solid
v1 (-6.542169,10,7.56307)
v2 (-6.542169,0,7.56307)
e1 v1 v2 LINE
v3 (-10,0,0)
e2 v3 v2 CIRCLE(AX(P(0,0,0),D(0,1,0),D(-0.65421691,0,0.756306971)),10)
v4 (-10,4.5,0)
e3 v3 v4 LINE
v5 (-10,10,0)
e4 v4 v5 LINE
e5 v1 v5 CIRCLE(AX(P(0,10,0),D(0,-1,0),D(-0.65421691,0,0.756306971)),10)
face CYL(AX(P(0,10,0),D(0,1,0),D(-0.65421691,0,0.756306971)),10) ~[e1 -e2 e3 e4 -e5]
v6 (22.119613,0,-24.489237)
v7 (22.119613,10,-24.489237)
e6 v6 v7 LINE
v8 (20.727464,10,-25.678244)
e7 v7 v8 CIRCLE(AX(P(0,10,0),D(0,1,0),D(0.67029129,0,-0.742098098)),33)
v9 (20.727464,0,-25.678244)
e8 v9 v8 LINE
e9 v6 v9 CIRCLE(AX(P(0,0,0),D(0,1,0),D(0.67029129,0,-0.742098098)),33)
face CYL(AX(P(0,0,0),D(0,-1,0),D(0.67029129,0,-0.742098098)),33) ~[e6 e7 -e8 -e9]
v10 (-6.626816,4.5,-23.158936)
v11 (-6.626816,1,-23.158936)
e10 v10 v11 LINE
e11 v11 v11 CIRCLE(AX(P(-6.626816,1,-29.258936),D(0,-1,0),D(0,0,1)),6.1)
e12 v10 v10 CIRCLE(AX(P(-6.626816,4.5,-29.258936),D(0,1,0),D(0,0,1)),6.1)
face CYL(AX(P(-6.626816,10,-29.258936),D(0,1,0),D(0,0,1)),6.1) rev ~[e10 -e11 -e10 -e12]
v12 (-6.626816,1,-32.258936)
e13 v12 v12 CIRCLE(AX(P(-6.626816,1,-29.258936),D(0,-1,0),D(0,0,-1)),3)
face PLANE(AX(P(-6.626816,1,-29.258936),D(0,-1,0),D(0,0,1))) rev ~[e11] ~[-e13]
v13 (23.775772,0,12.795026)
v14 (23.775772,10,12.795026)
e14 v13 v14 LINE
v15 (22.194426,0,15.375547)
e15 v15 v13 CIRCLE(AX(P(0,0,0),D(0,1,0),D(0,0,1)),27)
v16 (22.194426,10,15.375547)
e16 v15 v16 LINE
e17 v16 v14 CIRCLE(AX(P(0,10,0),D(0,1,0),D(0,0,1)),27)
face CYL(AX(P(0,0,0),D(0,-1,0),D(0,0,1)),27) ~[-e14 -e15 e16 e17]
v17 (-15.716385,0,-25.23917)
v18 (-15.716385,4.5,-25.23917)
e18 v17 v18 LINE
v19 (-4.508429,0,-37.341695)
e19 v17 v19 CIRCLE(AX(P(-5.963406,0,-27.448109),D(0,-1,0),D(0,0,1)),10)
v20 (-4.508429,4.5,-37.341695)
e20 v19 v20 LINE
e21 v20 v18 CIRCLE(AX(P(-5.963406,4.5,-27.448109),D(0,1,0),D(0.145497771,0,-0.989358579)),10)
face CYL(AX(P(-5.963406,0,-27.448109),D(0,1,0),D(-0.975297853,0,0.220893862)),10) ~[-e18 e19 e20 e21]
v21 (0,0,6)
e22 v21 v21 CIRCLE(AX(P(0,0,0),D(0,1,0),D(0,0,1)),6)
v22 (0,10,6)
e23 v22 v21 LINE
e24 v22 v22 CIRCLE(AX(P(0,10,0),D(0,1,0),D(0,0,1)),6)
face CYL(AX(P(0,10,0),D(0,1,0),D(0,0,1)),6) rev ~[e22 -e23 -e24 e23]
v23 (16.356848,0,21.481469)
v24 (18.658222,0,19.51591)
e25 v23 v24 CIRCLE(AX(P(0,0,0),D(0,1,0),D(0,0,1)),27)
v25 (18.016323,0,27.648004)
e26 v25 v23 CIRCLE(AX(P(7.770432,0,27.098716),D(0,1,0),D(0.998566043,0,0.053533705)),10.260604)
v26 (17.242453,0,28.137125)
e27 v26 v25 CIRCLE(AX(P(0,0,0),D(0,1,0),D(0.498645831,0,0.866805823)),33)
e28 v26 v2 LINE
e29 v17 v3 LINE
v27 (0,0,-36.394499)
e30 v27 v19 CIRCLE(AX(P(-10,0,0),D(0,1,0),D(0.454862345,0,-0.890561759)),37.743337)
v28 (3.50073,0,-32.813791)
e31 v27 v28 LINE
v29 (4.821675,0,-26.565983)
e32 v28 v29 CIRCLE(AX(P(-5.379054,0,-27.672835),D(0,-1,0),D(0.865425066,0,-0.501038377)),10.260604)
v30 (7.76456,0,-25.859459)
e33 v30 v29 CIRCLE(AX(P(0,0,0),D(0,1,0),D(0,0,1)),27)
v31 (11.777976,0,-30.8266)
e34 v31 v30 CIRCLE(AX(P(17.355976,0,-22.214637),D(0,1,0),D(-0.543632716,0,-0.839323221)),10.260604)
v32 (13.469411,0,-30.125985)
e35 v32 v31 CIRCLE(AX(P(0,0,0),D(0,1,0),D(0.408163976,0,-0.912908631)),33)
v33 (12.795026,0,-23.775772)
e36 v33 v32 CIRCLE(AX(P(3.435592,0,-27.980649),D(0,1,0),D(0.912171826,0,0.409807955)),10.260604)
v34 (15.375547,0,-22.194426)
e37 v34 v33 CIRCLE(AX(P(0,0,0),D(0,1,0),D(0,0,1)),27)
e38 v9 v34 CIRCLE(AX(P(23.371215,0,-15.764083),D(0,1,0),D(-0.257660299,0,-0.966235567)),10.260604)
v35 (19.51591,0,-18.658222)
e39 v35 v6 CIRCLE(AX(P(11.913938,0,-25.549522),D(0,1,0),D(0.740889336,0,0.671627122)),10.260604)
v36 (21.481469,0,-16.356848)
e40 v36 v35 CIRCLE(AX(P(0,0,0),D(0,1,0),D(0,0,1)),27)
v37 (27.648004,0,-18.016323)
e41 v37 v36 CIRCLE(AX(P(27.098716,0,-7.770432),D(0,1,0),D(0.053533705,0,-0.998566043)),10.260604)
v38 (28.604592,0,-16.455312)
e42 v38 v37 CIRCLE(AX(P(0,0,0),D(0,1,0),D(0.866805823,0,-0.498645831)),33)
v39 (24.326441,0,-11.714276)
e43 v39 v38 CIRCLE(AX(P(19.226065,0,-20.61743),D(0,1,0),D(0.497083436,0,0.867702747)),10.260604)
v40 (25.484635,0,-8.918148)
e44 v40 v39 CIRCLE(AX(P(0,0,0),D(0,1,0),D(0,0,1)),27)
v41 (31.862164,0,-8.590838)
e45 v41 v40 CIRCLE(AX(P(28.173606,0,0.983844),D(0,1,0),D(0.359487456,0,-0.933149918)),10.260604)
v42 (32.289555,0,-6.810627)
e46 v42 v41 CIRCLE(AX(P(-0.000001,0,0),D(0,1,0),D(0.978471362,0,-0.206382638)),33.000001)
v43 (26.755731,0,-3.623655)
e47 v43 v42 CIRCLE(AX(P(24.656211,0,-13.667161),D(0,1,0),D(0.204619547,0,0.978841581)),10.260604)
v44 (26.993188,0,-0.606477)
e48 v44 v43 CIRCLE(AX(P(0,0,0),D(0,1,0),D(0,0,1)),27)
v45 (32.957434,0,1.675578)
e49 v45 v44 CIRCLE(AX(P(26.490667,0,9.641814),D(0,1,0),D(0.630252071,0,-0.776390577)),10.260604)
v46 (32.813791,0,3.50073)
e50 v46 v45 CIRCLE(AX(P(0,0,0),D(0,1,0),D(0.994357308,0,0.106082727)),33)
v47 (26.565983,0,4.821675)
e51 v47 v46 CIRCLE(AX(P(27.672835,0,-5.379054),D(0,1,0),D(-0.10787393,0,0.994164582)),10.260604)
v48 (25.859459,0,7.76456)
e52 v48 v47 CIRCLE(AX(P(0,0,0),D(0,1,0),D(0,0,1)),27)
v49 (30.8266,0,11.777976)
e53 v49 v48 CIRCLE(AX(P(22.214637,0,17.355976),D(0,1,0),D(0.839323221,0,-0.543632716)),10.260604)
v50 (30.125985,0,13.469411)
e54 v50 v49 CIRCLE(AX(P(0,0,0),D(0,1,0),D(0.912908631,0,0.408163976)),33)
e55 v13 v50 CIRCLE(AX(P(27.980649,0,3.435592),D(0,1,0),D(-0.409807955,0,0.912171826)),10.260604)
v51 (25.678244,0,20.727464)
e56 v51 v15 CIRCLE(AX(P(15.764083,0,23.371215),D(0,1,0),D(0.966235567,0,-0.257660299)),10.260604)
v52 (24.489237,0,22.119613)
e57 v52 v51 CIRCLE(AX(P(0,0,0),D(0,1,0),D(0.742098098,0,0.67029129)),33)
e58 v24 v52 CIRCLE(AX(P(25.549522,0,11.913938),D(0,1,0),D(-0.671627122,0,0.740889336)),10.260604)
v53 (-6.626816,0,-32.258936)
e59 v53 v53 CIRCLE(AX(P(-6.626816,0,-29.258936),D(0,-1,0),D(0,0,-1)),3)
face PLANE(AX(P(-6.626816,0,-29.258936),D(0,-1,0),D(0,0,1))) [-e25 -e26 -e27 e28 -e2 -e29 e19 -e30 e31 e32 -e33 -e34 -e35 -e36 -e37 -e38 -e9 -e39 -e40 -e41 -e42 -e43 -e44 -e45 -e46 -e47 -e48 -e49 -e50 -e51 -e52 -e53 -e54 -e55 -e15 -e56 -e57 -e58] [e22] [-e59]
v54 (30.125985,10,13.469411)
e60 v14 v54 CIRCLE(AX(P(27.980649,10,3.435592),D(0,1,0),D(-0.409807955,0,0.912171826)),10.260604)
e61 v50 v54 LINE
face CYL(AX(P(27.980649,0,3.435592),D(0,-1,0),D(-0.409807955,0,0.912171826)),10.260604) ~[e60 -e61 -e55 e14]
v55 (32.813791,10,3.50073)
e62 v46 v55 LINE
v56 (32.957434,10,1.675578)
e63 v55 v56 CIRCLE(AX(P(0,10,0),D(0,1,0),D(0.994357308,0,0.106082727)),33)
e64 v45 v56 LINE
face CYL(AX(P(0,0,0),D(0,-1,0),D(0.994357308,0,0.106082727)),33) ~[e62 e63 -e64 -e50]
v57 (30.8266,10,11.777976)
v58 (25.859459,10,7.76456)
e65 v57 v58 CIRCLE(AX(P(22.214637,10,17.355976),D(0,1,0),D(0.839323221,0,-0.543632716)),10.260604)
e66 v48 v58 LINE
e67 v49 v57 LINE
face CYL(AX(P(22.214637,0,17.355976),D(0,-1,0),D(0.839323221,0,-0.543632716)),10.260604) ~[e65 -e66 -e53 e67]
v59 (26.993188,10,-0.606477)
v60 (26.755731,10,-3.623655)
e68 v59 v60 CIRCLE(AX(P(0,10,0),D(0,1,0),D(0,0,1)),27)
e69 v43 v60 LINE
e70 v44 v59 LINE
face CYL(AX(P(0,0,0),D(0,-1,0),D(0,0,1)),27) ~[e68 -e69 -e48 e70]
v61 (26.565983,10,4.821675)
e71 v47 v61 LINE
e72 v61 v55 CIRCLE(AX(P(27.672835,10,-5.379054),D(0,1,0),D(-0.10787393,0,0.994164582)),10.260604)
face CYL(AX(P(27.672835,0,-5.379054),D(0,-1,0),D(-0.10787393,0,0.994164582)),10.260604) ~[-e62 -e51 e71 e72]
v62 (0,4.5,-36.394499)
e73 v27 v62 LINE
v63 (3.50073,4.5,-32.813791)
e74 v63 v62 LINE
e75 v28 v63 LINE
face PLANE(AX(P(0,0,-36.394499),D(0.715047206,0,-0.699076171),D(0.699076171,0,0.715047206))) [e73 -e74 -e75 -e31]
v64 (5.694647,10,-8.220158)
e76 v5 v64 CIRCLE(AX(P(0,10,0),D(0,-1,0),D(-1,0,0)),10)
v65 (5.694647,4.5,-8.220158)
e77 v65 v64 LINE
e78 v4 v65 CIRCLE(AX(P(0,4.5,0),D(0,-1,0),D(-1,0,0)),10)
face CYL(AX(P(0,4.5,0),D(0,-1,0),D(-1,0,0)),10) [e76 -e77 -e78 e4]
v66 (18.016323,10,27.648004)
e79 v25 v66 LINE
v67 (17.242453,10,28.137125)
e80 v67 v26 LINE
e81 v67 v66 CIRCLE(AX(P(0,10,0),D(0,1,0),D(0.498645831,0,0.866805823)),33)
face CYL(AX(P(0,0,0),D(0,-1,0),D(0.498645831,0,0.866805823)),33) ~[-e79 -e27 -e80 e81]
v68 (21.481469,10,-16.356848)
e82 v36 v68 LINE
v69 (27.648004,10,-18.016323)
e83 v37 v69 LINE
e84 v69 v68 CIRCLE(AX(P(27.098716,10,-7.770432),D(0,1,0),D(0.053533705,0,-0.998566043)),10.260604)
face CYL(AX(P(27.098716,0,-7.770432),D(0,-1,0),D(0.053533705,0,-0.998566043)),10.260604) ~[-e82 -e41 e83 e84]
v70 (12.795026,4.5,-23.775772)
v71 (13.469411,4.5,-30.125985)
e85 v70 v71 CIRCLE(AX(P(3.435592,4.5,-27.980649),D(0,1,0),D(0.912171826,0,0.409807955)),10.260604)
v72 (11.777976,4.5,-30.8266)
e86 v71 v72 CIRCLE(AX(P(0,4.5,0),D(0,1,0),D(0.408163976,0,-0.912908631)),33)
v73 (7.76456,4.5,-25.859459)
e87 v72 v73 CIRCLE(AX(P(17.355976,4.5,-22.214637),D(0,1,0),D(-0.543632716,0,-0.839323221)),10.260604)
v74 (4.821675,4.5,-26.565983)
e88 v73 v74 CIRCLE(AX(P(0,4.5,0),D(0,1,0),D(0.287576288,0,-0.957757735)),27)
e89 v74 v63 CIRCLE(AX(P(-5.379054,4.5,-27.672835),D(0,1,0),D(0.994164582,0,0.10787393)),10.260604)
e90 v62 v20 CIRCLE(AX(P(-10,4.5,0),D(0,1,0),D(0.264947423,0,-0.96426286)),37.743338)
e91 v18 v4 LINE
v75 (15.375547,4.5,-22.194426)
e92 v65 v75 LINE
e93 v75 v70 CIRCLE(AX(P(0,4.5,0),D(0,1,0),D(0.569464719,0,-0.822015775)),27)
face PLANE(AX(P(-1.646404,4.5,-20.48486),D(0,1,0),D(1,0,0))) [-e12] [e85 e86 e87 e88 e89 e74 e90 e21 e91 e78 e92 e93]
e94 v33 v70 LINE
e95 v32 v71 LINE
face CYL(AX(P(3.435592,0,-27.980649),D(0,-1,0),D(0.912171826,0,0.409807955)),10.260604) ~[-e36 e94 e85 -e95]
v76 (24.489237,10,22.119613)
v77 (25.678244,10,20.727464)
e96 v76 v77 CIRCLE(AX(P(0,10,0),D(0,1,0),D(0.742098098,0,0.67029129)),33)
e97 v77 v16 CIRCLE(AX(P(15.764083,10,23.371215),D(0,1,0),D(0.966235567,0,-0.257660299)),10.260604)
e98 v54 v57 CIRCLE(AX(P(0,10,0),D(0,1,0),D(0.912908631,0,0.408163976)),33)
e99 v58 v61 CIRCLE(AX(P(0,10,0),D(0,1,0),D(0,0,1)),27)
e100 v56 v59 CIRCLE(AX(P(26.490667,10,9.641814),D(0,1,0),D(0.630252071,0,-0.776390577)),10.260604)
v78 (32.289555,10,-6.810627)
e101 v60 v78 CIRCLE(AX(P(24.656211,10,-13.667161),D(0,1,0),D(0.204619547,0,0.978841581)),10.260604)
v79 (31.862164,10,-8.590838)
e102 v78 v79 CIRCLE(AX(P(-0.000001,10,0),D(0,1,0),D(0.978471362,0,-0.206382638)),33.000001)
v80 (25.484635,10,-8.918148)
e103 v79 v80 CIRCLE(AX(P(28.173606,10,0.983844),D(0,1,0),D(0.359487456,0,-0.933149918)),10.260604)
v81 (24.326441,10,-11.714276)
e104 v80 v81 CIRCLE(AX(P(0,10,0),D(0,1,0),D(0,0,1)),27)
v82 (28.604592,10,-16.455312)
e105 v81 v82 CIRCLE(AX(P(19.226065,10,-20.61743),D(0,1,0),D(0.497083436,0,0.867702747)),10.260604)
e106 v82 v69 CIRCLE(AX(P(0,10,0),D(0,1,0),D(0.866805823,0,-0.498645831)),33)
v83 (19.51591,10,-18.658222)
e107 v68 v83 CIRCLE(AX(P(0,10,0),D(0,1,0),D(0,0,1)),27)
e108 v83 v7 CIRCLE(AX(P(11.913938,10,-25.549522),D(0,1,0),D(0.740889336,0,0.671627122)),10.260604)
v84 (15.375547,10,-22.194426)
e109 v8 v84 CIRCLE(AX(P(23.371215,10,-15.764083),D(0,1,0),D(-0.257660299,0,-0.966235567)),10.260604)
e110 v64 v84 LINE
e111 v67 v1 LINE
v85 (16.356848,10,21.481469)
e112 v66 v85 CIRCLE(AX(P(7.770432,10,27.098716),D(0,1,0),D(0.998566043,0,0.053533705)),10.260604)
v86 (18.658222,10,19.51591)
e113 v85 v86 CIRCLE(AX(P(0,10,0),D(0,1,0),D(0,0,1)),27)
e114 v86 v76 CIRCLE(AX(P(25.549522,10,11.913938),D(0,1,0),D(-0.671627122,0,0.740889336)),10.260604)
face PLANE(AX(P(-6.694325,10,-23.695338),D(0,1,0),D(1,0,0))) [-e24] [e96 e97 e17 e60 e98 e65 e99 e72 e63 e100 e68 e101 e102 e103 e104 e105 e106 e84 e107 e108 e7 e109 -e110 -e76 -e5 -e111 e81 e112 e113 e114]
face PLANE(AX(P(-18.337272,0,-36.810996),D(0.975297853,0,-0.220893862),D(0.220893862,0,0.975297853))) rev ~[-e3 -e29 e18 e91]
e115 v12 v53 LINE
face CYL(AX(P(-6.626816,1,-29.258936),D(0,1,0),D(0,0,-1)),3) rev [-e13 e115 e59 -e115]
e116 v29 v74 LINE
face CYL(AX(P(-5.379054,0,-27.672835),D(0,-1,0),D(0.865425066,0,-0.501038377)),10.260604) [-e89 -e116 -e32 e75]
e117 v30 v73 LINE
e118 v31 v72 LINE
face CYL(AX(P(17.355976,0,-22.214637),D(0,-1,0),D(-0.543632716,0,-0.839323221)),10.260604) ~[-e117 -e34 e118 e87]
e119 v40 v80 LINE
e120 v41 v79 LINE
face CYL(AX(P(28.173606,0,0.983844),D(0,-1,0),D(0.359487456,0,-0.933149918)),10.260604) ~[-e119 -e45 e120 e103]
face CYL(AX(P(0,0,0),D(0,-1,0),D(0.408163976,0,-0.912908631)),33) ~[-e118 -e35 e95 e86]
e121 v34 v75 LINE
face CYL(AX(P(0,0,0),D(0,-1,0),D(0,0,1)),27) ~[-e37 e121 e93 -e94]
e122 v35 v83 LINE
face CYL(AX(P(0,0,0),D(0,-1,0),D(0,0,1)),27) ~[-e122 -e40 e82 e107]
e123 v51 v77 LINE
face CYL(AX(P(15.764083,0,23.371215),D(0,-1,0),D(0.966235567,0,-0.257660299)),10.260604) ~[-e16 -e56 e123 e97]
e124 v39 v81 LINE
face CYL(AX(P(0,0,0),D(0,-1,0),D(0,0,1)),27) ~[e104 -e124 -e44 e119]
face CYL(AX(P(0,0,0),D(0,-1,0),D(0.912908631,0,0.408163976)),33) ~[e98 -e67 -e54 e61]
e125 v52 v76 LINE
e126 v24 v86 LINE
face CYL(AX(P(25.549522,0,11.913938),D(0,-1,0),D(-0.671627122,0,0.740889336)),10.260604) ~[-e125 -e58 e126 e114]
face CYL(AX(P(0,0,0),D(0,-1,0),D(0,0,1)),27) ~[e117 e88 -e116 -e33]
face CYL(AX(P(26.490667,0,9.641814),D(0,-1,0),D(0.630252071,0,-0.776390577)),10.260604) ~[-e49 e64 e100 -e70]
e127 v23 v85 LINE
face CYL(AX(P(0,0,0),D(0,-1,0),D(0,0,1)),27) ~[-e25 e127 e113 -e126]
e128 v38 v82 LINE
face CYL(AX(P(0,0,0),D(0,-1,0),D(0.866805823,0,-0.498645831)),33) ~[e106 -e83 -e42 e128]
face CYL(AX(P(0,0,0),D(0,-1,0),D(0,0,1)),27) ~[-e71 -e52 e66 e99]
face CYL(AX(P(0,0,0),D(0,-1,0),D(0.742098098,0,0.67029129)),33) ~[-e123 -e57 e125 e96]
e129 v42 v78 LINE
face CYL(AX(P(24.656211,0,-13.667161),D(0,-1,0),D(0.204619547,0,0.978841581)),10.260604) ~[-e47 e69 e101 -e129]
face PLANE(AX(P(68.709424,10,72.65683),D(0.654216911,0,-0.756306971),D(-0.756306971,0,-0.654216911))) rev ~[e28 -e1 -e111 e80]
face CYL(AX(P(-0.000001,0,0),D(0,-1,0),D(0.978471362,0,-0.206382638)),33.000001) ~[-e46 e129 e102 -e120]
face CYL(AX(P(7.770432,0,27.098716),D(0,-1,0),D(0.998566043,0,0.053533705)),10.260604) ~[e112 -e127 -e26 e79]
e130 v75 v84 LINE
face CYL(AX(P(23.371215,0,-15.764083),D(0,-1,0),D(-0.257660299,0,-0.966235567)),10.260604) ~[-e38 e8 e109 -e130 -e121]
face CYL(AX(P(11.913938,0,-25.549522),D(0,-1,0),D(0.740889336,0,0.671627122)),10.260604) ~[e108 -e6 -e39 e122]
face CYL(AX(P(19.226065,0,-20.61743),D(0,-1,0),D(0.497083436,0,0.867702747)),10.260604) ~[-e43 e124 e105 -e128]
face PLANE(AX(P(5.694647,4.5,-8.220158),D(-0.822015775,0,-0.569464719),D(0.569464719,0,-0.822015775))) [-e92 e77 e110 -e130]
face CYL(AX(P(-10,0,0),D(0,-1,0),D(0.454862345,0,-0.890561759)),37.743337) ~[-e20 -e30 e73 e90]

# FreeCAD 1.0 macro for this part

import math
import FreeCAD as App
import Part
import Sketcher

V = App.Vector


def edges_at(feature, points):
    """Names of the edges that pass closest to the given points."""
    edges = feature.Shape.Edges
    near = lambda p: min(range(len(edges)), key=lambda i: edges[i].distToShape(Part.Vertex(*p))[0])
    return sorted({f"Edge{near(p) + 1}" for p in points})

doc = App.newDocument("Part")
body = doc.addObject("PartDesign::Body", "Body")

sketch1 = body.newObject("Sketcher::SketchObject", "Sketch")
sketch1.AttachmentSupport = (doc.getObject("XZ_Plane"), [""])
sketch1.MapMode = "FlatFace"
sketch1.addGeometry(Part.Circle(V(0, 0, 0), V(0, 0, 1), 27), False)
sketch1.addConstraint([
    Sketcher.Constraint("Coincident", 0, 3, -1, 1),
    Sketcher.Constraint("Diameter", 0, 54.0),
])
pad1 = body.newObject("PartDesign::Pad", "Pad")
pad1.Profile = sketch1
pad1.Length = 10
pad1.Reversed = True

sketch2 = body.newObject("Sketcher::SketchObject", "Sketch001")
sketch2.AttachmentSupport = (doc.getObject("XZ_Plane"), [""])
sketch2.MapMode = "FlatFace"
sketch2.addGeometry([
    Part.ArcOfCircle(Part.Circle(V(-13.7, -24.7, 0), V(0, 0, 1), 10.3), math.radians(-48), math.radians(-12)),
    Part.ArcOfCircle(Part.Circle(V(0, 0, 0), V(0, 0, 1), 33), math.radians(-105.09), math.radians(-101.91)),
    Part.ArcOfCircle(Part.Circle(V(1, -28.2, 0), V(0, 0, 1), 10.3), math.radians(165), math.radians(201)),
    Part.ArcOfCircle(Part.Circle(V(0, 0, 0), V(0, 0, 1), 27), math.radians(-109.29), math.radians(-97.71)),
    Part.ArcOfCircle(Part.Circle(V(-20.6, -19.2, 0), V(0, 0, 1), 10.3), math.radians(-66), math.radians(-30)),
    Part.ArcOfCircle(Part.Circle(V(0, 0, 0), V(0, 0, 1), 33), math.radians(-123.09), math.radians(-119.91)),
    Part.ArcOfCircle(Part.Circle(V(-7.8, -27.1, 0), V(0, 0, 1), 10.3), math.radians(147), math.radians(183)),
    Part.ArcOfCircle(Part.Circle(V(0, 0, 0), V(0, 0, 1), 27), math.radians(-127.29), math.radians(-115.71)),
    Part.ArcOfCircle(Part.Circle(V(-25.5, -11.9, 0), V(0, 0, 1), 10.3), math.radians(-84), math.radians(-48)),
    Part.ArcOfCircle(Part.Circle(V(0, 0, 0), V(0, 0, 1), 33), math.radians(-141.09), math.radians(-137.91)),
    Part.ArcOfCircle(Part.Circle(V(-15.8, -23.4, 0), V(0, 0, 1), 10.3), math.radians(129), math.radians(165)),
    Part.ArcOfCircle(Part.Circle(V(0, 0, 0), V(0, 0, 1), 27), math.radians(-145.29), math.radians(-133.71)),
    Part.ArcOfCircle(Part.Circle(V(-28, -3.4, 0), V(0, 0, 1), 10.3), math.radians(-102), math.radians(-66)),
    Part.ArcOfCircle(Part.Circle(V(0, 0, 0), V(0, 0, 1), 33), math.radians(-159.09), math.radians(-155.91)),
    Part.ArcOfCircle(Part.Circle(V(-22.2, -17.4, 0), V(0, 0, 1), 10.3), math.radians(111), math.radians(147)),
    Part.ArcOfCircle(Part.Circle(V(0, 0, 0), V(0, 0, 1), 27), math.radians(-163.29), math.radians(-151.71)),
    Part.ArcOfCircle(Part.Circle(V(-27.7, 5.4, 0), V(0, 0, 1), 10.3), math.radians(-120), math.radians(-84)),
    Part.ArcOfCircle(Part.Circle(V(0, 0, 0), V(0, 0, 1), 33), math.radians(-177.09), math.radians(-173.91)),
    Part.ArcOfCircle(Part.Circle(V(-26.5, -9.6, 0), V(0, 0, 1), 10.3), math.radians(93), math.radians(129)),
    Part.ArcOfCircle(Part.Circle(V(0, 0, 0), V(0, 0, 1), 27), math.radians(178.71), math.radians(190.29)),
    Part.ArcOfCircle(Part.Circle(V(0, 0, 0), V(0, 0, 1), 33), math.radians(164.91), math.radians(168.09)),
    Part.ArcOfCircle(Part.Circle(V(-28.2, -1, 0), V(0, 0, 1), 10.3), math.radians(75), math.radians(111)),
    Part.ArcOfCircle(Part.Circle(V(0, 0, 0), V(0, 0, 1), 27), math.radians(160.71), math.radians(172.29)),
    Part.ArcOfCircle(Part.Circle(V(-24.7, 13.7, 0), V(0, 0, 1), 10.3), math.radians(-138), math.radians(-102)),
    Part.ArcOfCircle(Part.Circle(V(0, 0, 0), V(0, 0, 1), 33), math.radians(146.91), math.radians(150.09)),
    Part.ArcOfCircle(Part.Circle(V(-27.1, 7.8, 0), V(0, 0, 1), 10.3), math.radians(57), math.radians(93)),
    Part.ArcOfCircle(Part.Circle(V(0, 0, 0), V(0, 0, 1), 27), math.radians(142.71), math.radians(154.29)),
    Part.ArcOfCircle(Part.Circle(V(-19.2, 20.6, 0), V(0, 0, 1), 10.3), math.radians(-156), math.radians(-120)),
    Part.ArcOfCircle(Part.Circle(V(0, 0, 0), V(0, 0, 1), 33), math.radians(128.91), math.radians(132.09)),
    Part.ArcOfCircle(Part.Circle(V(-23.4, 15.8, 0), V(0, 0, 1), 10.3), math.radians(39), math.radians(75)),
    Part.ArcOfCircle(Part.Circle(V(0, 0, 0), V(0, 0, 1), 27), math.radians(124.71), math.radians(136.29)),
    Part.ArcOfCircle(Part.Circle(V(-11.9, 25.5, 0), V(0, 0, 1), 10.3), math.radians(-174), math.radians(-138)),
    Part.ArcOfCircle(Part.Circle(V(0, 0, 0), V(0, 0, 1), 33), math.radians(110.91), math.radians(114.09)),
    Part.ArcOfCircle(Part.Circle(V(-17.4, 22.2, 0), V(0, 0, 1), 10.3), math.radians(21), math.radians(57)),
    Part.ArcOfCircle(Part.Circle(V(0, 0, 0), V(0, 0, 1), 27), math.radians(106.71), math.radians(118.29)),
    Part.ArcOfCircle(Part.Circle(V(-3.4, 28, 0), V(0, 0, 1), 10.3), math.radians(168), math.radians(204)),
    Part.ArcOfCircle(Part.Circle(V(0, 0, 0), V(0, 0, 1), 33), math.radians(92.91), math.radians(96.09)),
    Part.ArcOfCircle(Part.Circle(V(-9.6, 26.5, 0), V(0, 0, 1), 10.3), math.radians(3), math.radians(39)),
    Part.ArcOfCircle(Part.Circle(V(0, 0, 0), V(0, 0, 1), 27), math.radians(88.71), math.radians(100.29)),
    Part.ArcOfCircle(Part.Circle(V(5.4, 27.7, 0), V(0, 0, 1), 10.3), math.radians(150), math.radians(186)),
    Part.ArcOfCircle(Part.Circle(V(0, 0, 0), V(0, 0, 1), 33), math.radians(74.91), math.radians(78.09)),
    Part.ArcOfCircle(Part.Circle(V(-1, 28.2, 0), V(0, 0, 1), 10.3), math.radians(-15), math.radians(21)),
    Part.ArcOfCircle(Part.Circle(V(0, 0, 0), V(0, 0, 1), 27), math.radians(70.71), math.radians(82.29)),
    Part.ArcOfCircle(Part.Circle(V(13.7, 24.7, 0), V(0, 0, 1), 10.3), math.radians(132), math.radians(168)),
    Part.ArcOfCircle(Part.Circle(V(0, 0, 0), V(0, 0, 1), 33), math.radians(56.91), math.radians(60.09)),
    Part.ArcOfCircle(Part.Circle(V(7.8, 27.1, 0), V(0, 0, 1), 10.3), math.radians(-33), math.radians(3)),
    Part.ArcOfCircle(Part.Circle(V(0, 0, 0), V(0, 0, 1), 27), math.radians(52.71), math.radians(64.29)),
    Part.ArcOfCircle(Part.Circle(V(20.6, 19.2, 0), V(0, 0, 1), 10.3), math.radians(114), math.radians(150)),
    Part.ArcOfCircle(Part.Circle(V(0, 0, 0), V(0, 0, 1), 33), math.radians(38.91), math.radians(42.09)),
    Part.ArcOfCircle(Part.Circle(V(15.8, 23.4, 0), V(0, 0, 1), 10.3), math.radians(-51), math.radians(-15)),
    Part.ArcOfCircle(Part.Circle(V(0, 0, 0), V(0, 0, 1), 27), math.radians(34.71), math.radians(46.29)),
    Part.ArcOfCircle(Part.Circle(V(25.5, 11.9, 0), V(0, 0, 1), 10.3), math.radians(96), math.radians(132)),
    Part.ArcOfCircle(Part.Circle(V(0, 0, 0), V(0, 0, 1), 33), math.radians(20.91), math.radians(24.09)),
    Part.ArcOfCircle(Part.Circle(V(22.2, 17.4, 0), V(0, 0, 1), 10.3), math.radians(-69), math.radians(-33)),
    Part.ArcOfCircle(Part.Circle(V(0, 0, 0), V(0, 0, 1), 27), math.radians(16.71), math.radians(28.29)),
    Part.ArcOfCircle(Part.Circle(V(28, 3.4, 0), V(0, 0, 1), 10.3), math.radians(78), math.radians(114)),
    Part.ArcOfCircle(Part.Circle(V(0, 0, 0), V(0, 0, 1), 33), math.radians(2.91), math.radians(6.09)),
    Part.ArcOfCircle(Part.Circle(V(26.5, 9.6, 0), V(0, 0, 1), 10.3), math.radians(-87), math.radians(-51)),
    Part.ArcOfCircle(Part.Circle(V(0, 0, 0), V(0, 0, 1), 27), math.radians(-1.29), math.radians(0)),
    Part.ArcOfCircle(Part.Circle(V(0, 0, 0), V(0, 0, 1), 27), math.radians(0), math.radians(10.29)),
    Part.ArcOfCircle(Part.Circle(V(27.7, -5.4, 0), V(0, 0, 1), 10.3), math.radians(60), math.radians(96)),
    Part.ArcOfCircle(Part.Circle(V(24.7, -13.7, 0), V(0, 0, 1), 10.3), math.radians(42), math.radians(78)),
    Part.ArcOfCircle(Part.Circle(V(0, 0, 0), V(0, 0, 1), 33), math.radians(-15.09), math.radians(-11.91)),
    Part.ArcOfCircle(Part.Circle(V(28.2, 1, 0), V(0, 0, 1), 10.3), math.radians(-105), math.radians(-69)),
    Part.ArcOfCircle(Part.Circle(V(0, 0, 0), V(0, 0, 1), 27), math.radians(-19.29), math.radians(-7.71)),
    Part.ArcOfCircle(Part.Circle(V(19.2, -20.6, 0), V(0, 0, 1), 10.3), math.radians(24), math.radians(60)),
    Part.ArcOfCircle(Part.Circle(V(0, 0, 0), V(0, 0, 1), 33), math.radians(-33.09), math.radians(-29.91)),
    Part.ArcOfCircle(Part.Circle(V(27.1, -7.8, 0), V(0, 0, 1), 10.3), math.radians(-123), math.radians(-87)),
    Part.ArcOfCircle(Part.Circle(V(0, 0, 0), V(0, 0, 1), 27), math.radians(-37.29), math.radians(-25.71)),
    Part.ArcOfCircle(Part.Circle(V(11.9, -25.5, 0), V(0, 0, 1), 10.3), math.radians(6), math.radians(42)),
    Part.ArcOfCircle(Part.Circle(V(0, 0, 0), V(0, 0, 1), 33), math.radians(-51.09), math.radians(-47.91)),
    Part.ArcOfCircle(Part.Circle(V(23.4, -15.8, 0), V(0, 0, 1), 10.3), math.radians(-141), math.radians(-105)),
    Part.ArcOfCircle(Part.Circle(V(0, 0, 0), V(0, 0, 1), 27), math.radians(-55.29), math.radians(-43.71)),
    Part.ArcOfCircle(Part.Circle(V(3.4, -28, 0), V(0, 0, 1), 10.3), math.radians(-12), math.radians(24)),
    Part.ArcOfCircle(Part.Circle(V(0, 0, 0), V(0, 0, 1), 33), math.radians(-69.09), math.radians(-65.91)),
    Part.ArcOfCircle(Part.Circle(V(17.4, -22.2, 0), V(0, 0, 1), 10.3), math.radians(-159), math.radians(-123)),
    Part.ArcOfCircle(Part.Circle(V(0, 0, 0), V(0, 0, 1), 27), math.radians(-73.29), math.radians(-61.71)),
    Part.ArcOfCircle(Part.Circle(V(-5.4, -27.7, 0), V(0, 0, 1), 10.3), math.radians(-30), math.radians(6)),
    Part.ArcOfCircle(Part.Circle(V(0, 0, 0), V(0, 0, 1), 33), math.radians(-87.09), math.radians(-83.91)),
    Part.ArcOfCircle(Part.Circle(V(9.6, -26.5, 0), V(0, 0, 1), 10.3), math.radians(-177), math.radians(-141)),
    Part.ArcOfCircle(Part.Circle(V(0, 0, 0), V(0, 0, 1), 27), math.radians(-91.29), math.radians(-79.71)),
], False)
sketch2.addConstraint([
    Sketcher.Constraint("Coincident", 0, 1, 1, 2),
    Sketcher.Constraint("Coincident", 1, 1, 2, 2),
    Sketcher.Constraint("Coincident", 2, 1, 3, 1),
    Sketcher.Constraint("Coincident", 3, 2, 0, 2),
    Sketcher.Constraint("Coincident", 4, 1, 5, 2),
    Sketcher.Constraint("Coincident", 5, 1, 6, 2),
    Sketcher.Constraint("Coincident", 6, 1, 7, 1),
    Sketcher.Constraint("Coincident", 7, 2, 4, 2),
    Sketcher.Constraint("Coincident", 8, 1, 9, 2),
    Sketcher.Constraint("Coincident", 9, 1, 10, 2),
    Sketcher.Constraint("Coincident", 10, 1, 11, 1),
    Sketcher.Constraint("Coincident", 11, 2, 8, 2),
    Sketcher.Constraint("Coincident", 12, 1, 13, 2),
    Sketcher.Constraint("Coincident", 13, 1, 14, 2),
    Sketcher.Constraint("Coincident", 14, 1, 15, 1),
    Sketcher.Constraint("Coincident", 15, 2, 12, 2),
    Sketcher.Constraint("Coincident", 16, 1, 17, 2),
    Sketcher.Constraint("Coincident", 17, 1, 18, 2),
    Sketcher.Constraint("Coincident", 18, 1, 19, 1),
    Sketcher.Constraint("Coincident", 19, 2, 16, 2),
    Sketcher.Constraint("Coincident", 20, 1, 21, 2),
    Sketcher.Constraint("Coincident", 21, 1, 22, 1),
    Sketcher.Constraint("Coincident", 22, 2, 23, 2),
    Sketcher.Constraint("Coincident", 23, 1, 20, 2),
    Sketcher.Constraint("Coincident", 24, 1, 25, 2),
    Sketcher.Constraint("Coincident", 25, 1, 26, 1),
    Sketcher.Constraint("Coincident", 26, 2, 27, 2),
    Sketcher.Constraint("Coincident", 27, 1, 24, 2),
    Sketcher.Constraint("Coincident", 28, 1, 29, 2),
    Sketcher.Constraint("Coincident", 29, 1, 30, 1),
    Sketcher.Constraint("Coincident", 30, 2, 31, 2),
    Sketcher.Constraint("Coincident", 31, 1, 28, 2),
    Sketcher.Constraint("Coincident", 32, 1, 33, 2),
    Sketcher.Constraint("Coincident", 33, 1, 34, 1),
    Sketcher.Constraint("Coincident", 34, 2, 35, 2),
    Sketcher.Constraint("Coincident", 35, 1, 32, 2),
    Sketcher.Constraint("Coincident", 36, 1, 37, 2),
    Sketcher.Constraint("Coincident", 37, 1, 38, 1),
    Sketcher.Constraint("Coincident", 38, 2, 39, 2),
    Sketcher.Constraint("Coincident", 39, 1, 36, 2),
    Sketcher.Constraint("Coincident", 40, 1, 41, 2),
    Sketcher.Constraint("Coincident", 41, 1, 42, 1),
    Sketcher.Constraint("Coincident", 42, 2, 43, 2),
    Sketcher.Constraint("Coincident", 43, 1, 40, 2),
    Sketcher.Constraint("Coincident", 44, 1, 45, 2),
    Sketcher.Constraint("Coincident", 45, 1, 46, 1),
    Sketcher.Constraint("Coincident", 46, 2, 47, 2),
    Sketcher.Constraint("Coincident", 47, 1, 44, 2),
    Sketcher.Constraint("Coincident", 48, 1, 49, 2),
    Sketcher.Constraint("Coincident", 49, 1, 50, 1),
    Sketcher.Constraint("Coincident", 50, 2, 51, 2),
    Sketcher.Constraint("Coincident", 51, 1, 48, 2),
    Sketcher.Constraint("Coincident", 52, 1, 53, 2),
    Sketcher.Constraint("Coincident", 53, 1, 54, 1),
    Sketcher.Constraint("Coincident", 54, 2, 55, 2),
    Sketcher.Constraint("Coincident", 55, 1, 52, 2),
    Sketcher.Constraint("Coincident", 56, 1, 57, 2),
    Sketcher.Constraint("Coincident", 57, 1, 58, 1),
    Sketcher.Constraint("Tangent", 58, 2, 59, 1),
    Sketcher.Constraint("Coincident", 59, 2, 60, 2),
    Sketcher.Constraint("Coincident", 60, 1, 56, 2),
    Sketcher.Constraint("Coincident", 61, 1, 62, 2),
    Sketcher.Constraint("Coincident", 62, 1, 63, 2),
    Sketcher.Constraint("Coincident", 63, 1, 64, 1),
    Sketcher.Constraint("Coincident", 64, 2, 61, 2),
    Sketcher.Constraint("Coincident", 65, 1, 66, 2),
    Sketcher.Constraint("Coincident", 66, 1, 67, 2),
    Sketcher.Constraint("Coincident", 67, 1, 68, 1),
    Sketcher.Constraint("Coincident", 68, 2, 65, 2),
    Sketcher.Constraint("Coincident", 69, 1, 70, 2),
    Sketcher.Constraint("Coincident", 70, 1, 71, 2),
    Sketcher.Constraint("Coincident", 71, 1, 72, 1),
    Sketcher.Constraint("Coincident", 72, 2, 69, 2),
    Sketcher.Constraint("Coincident", 73, 1, 74, 2),
    Sketcher.Constraint("Coincident", 74, 1, 75, 2),
    Sketcher.Constraint("Coincident", 75, 1, 76, 1),
    Sketcher.Constraint("Coincident", 76, 2, 73, 2),
    Sketcher.Constraint("Coincident", 77, 1, 78, 2),
    Sketcher.Constraint("Coincident", 78, 1, 79, 2),
    Sketcher.Constraint("Coincident", 79, 1, 80, 1),
    Sketcher.Constraint("Coincident", 80, 2, 77, 2),
    Sketcher.Constraint("Coincident", 1, 3, -1, 1),
    Sketcher.Constraint("Coincident", 3, 3, -1, 1),
    Sketcher.Constraint("Coincident", 5, 3, -1, 1),
    Sketcher.Constraint("Coincident", 7, 3, -1, 1),
    Sketcher.Constraint("Coincident", 9, 3, -1, 1),
    Sketcher.Constraint("Coincident", 11, 3, -1, 1),
    Sketcher.Constraint("Coincident", 13, 3, -1, 1),
    Sketcher.Constraint("Coincident", 15, 3, -1, 1),
    Sketcher.Constraint("Coincident", 17, 3, -1, 1),
    Sketcher.Constraint("Coincident", 19, 3, -1, 1),
    Sketcher.Constraint("Coincident", 20, 3, -1, 1),
    Sketcher.Constraint("Coincident", 22, 3, -1, 1),
    Sketcher.Constraint("Coincident", 24, 3, -1, 1),
    Sketcher.Constraint("Coincident", 26, 3, -1, 1),
    Sketcher.Constraint("Coincident", 28, 3, -1, 1),
    Sketcher.Constraint("Coincident", 30, 3, -1, 1),
    Sketcher.Constraint("Coincident", 32, 3, -1, 1),
    Sketcher.Constraint("Coincident", 34, 3, -1, 1),
    Sketcher.Constraint("Coincident", 36, 3, -1, 1),
    Sketcher.Constraint("Coincident", 38, 3, -1, 1),
    Sketcher.Constraint("Coincident", 40, 3, -1, 1),
    Sketcher.Constraint("Coincident", 42, 3, -1, 1),
    Sketcher.Constraint("Coincident", 44, 3, -1, 1),
    Sketcher.Constraint("Coincident", 46, 3, -1, 1),
    Sketcher.Constraint("Coincident", 48, 3, -1, 1),
    Sketcher.Constraint("Coincident", 50, 3, -1, 1),
    Sketcher.Constraint("Coincident", 52, 3, -1, 1),
    Sketcher.Constraint("Coincident", 54, 3, -1, 1),
    Sketcher.Constraint("Coincident", 56, 3, -1, 1),
    Sketcher.Constraint("Coincident", 58, 3, -1, 1),
    Sketcher.Constraint("Coincident", 62, 3, -1, 1),
    Sketcher.Constraint("Coincident", 64, 3, -1, 1),
    Sketcher.Constraint("Coincident", 66, 3, -1, 1),
    Sketcher.Constraint("Coincident", 68, 3, -1, 1),
    Sketcher.Constraint("Coincident", 70, 3, -1, 1),
    Sketcher.Constraint("Coincident", 72, 3, -1, 1),
    Sketcher.Constraint("Coincident", 74, 3, -1, 1),
    Sketcher.Constraint("Coincident", 76, 3, -1, 1),
    Sketcher.Constraint("Coincident", 78, 3, -1, 1),
    Sketcher.Constraint("Coincident", 80, 3, -1, 1),
    Sketcher.Constraint("Equal", 0, 2),
    Sketcher.Constraint("Equal", 2, 4),
    Sketcher.Constraint("Equal", 1, 5),
    Sketcher.Constraint("Equal", 4, 6),
    Sketcher.Constraint("Equal", 3, 7),
    Sketcher.Constraint("Equal", 6, 8),
    Sketcher.Constraint("Equal", 5, 9),
    Sketcher.Constraint("Equal", 8, 10),
    Sketcher.Constraint("Equal", 7, 11),
    Sketcher.Constraint("Equal", 10, 12),
    Sketcher.Constraint("Equal", 9, 13),
    Sketcher.Constraint("Equal", 12, 14),
    Sketcher.Constraint("Equal", 11, 15),
    Sketcher.Constraint("Equal", 14, 16),
    Sketcher.Constraint("Equal", 13, 17),
    Sketcher.Constraint("Equal", 16, 18),
    Sketcher.Constraint("Equal", 15, 19),
    Sketcher.Constraint("Equal", 17, 20),
    Sketcher.Constraint("Equal", 18, 21),
    Sketcher.Constraint("Equal", 19, 22),
    Sketcher.Constraint("Equal", 21, 23),
    Sketcher.Constraint("Equal", 20, 24),
    Sketcher.Constraint("Equal", 23, 25),
    Sketcher.Constraint("Equal", 22, 26),
    Sketcher.Constraint("Equal", 25, 27),
    Sketcher.Constraint("Equal", 24, 28),
    Sketcher.Constraint("Equal", 27, 29),
    Sketcher.Constraint("Equal", 26, 30),
    Sketcher.Constraint("Equal", 29, 31),
    Sketcher.Constraint("Equal", 28, 32),
    Sketcher.Constraint("Equal", 31, 33),
    Sketcher.Constraint("Equal", 30, 34),
    Sketcher.Constraint("Equal", 33, 35),
    Sketcher.Constraint("Equal", 32, 36),
    Sketcher.Constraint("Equal", 35, 37),
    Sketcher.Constraint("Equal", 34, 38),
    Sketcher.Constraint("Equal", 37, 39),
    Sketcher.Constraint("Equal", 36, 40),
    Sketcher.Constraint("Equal", 39, 41),
    Sketcher.Constraint("Equal", 38, 42),
    Sketcher.Constraint("Equal", 41, 43),
    Sketcher.Constraint("Equal", 40, 44),
    Sketcher.Constraint("Equal", 43, 45),
    Sketcher.Constraint("Equal", 42, 46),
    Sketcher.Constraint("Equal", 45, 47),
    Sketcher.Constraint("Equal", 44, 48),
    Sketcher.Constraint("Equal", 47, 49),
    Sketcher.Constraint("Equal", 46, 50),
    Sketcher.Constraint("Equal", 49, 51),
    Sketcher.Constraint("Equal", 48, 52),
    Sketcher.Constraint("Equal", 51, 53),
    Sketcher.Constraint("Equal", 50, 54),
    Sketcher.Constraint("Equal", 53, 55),
    Sketcher.Constraint("Equal", 52, 56),
    Sketcher.Constraint("Equal", 55, 57),
    Sketcher.Constraint("Equal", 54, 59),
    Sketcher.Constraint("Equal", 57, 60),
    Sketcher.Constraint("Equal", 60, 61),
    Sketcher.Constraint("Equal", 56, 62),
    Sketcher.Constraint("Equal", 61, 63),
    Sketcher.Constraint("Equal", 59, 64),
    Sketcher.Constraint("Equal", 63, 65),
    Sketcher.Constraint("Equal", 62, 66),
    Sketcher.Constraint("Equal", 65, 67),
    Sketcher.Constraint("Equal", 64, 68),
    Sketcher.Constraint("Equal", 67, 69),
    Sketcher.Constraint("Equal", 66, 70),
    Sketcher.Constraint("Equal", 69, 71),
    Sketcher.Constraint("Equal", 68, 72),
    Sketcher.Constraint("Equal", 71, 73),
    Sketcher.Constraint("Equal", 70, 74),
    Sketcher.Constraint("Equal", 73, 75),
    Sketcher.Constraint("Equal", 72, 76),
    Sketcher.Constraint("Equal", 75, 77),
    Sketcher.Constraint("Equal", 74, 78),
    Sketcher.Constraint("Equal", 77, 79),
    Sketcher.Constraint("Equal", 76, 80),
    Sketcher.Constraint("Symmetric", 2, 3, 41, 3, -1, 1),
    Sketcher.Constraint("Symmetric", 0, 3, 43, 3, -1, 1),
    Sketcher.Constraint("Symmetric", 6, 3, 45, 3, -1, 1),
    Sketcher.Constraint("Symmetric", 4, 3, 47, 3, -1, 1),
    Sketcher.Constraint("Symmetric", 10, 3, 49, 3, -1, 1),
    Sketcher.Constraint("Symmetric", 8, 3, 51, 3, -1, 1),
    Sketcher.Constraint("Symmetric", 14, 3, 53, 3, -1, 1),
    Sketcher.Constraint("Symmetric", 12, 3, 55, 3, -1, 1),
    Sketcher.Constraint("Symmetric", 18, 3, 57, 3, -1, 1),
    Sketcher.Constraint("Symmetric", 16, 3, 60, 3, -1, 1),
    Sketcher.Constraint("Symmetric", 23, 3, 61, 3, -1, 1),
    Sketcher.Constraint("Symmetric", 21, 3, 63, 3, -1, 1),
    Sketcher.Constraint("Symmetric", 27, 3, 65, 3, -1, 1),
    Sketcher.Constraint("Symmetric", 25, 3, 67, 3, -1, 1),
    Sketcher.Constraint("Symmetric", 31, 3, 69, 3, -1, 1),
    Sketcher.Constraint("Symmetric", 29, 3, 71, 3, -1, 1),
    Sketcher.Constraint("Symmetric", 35, 3, 73, 3, -1, 1),
    Sketcher.Constraint("Symmetric", 33, 3, 75, 3, -1, 1),
    Sketcher.Constraint("Symmetric", 39, 3, 77, 3, -1, 1),
    Sketcher.Constraint("Symmetric", 37, 3, 79, 3, -1, 1),
    Sketcher.Constraint("PointOnObject", 58, 2, -1),
    Sketcher.Constraint("Radius", 1, 33.000001),
    Sketcher.Constraint("Radius", 3, 27.0),
    Sketcher.Constraint("DistanceX", -1, 1, 58, 2, 27.0),
    Sketcher.Constraint("Radius", 0, 10.260604),
    Sketcher.Constraint("DistanceX", 13, 1, -1, 1, 30.8266),
    Sketcher.Constraint("DistanceY", -1, 1, 32, 1, 30.8266),
    Sketcher.Constraint("DistanceX", 0, 3, -1, 1, 13.667161),
    Sketcher.Constraint("DistanceY", 0, 3, -1, 1, 24.656211),
    Sketcher.Constraint("DistanceX", 4, 3, -1, 1, 20.61743),
    Sketcher.Constraint("DistanceX", 6, 3, -1, 1, 7.770432),
    Sketcher.Constraint("DistanceX", 12, 3, -1, 1, 27.980649),
    Sketcher.Constraint("DistanceY", 12, 3, -1, 1, 3.435592),
    Sketcher.Constraint("DistanceX", 23, 3, -1, 1, 24.656211),
    Sketcher.Constraint("DistanceY", -1, 1, 23, 3, 13.667161),
    Sketcher.Constraint("DistanceY", -1, 1, 25, 3, 7.770432),
    Sketcher.Constraint("DistanceY", -1, 1, 27, 3, 20.61743),
    Sketcher.Constraint("DistanceX", 35, 3, -1, 1, 3.435592),
    Sketcher.Constraint("DistanceY", -1, 1, 35, 3, 27.980649),
    Sketcher.Constraint("DistanceX", 1, 1, -1, 1, 8.590838),
    Sketcher.Constraint("DistanceY", 6, 1, -1, 1, 21.481469),
    Sketcher.Constraint("DistanceY", 7, 2, -1, 1, 24.326441),
    Sketcher.Constraint("DistanceY", 11, 2, -1, 1, 19.51591),
    Sketcher.Constraint("DistanceX", 14, 1, -1, 1, 25.859459),
    Sketcher.Constraint("DistanceX", 16, 1, -1, 1, 32.813791),
    Sketcher.Constraint("DistanceY", -1, 1, 20, 1, 8.590838),
    Sketcher.Constraint("DistanceX", 25, 1, -1, 1, 21.481469),
    Sketcher.Constraint("DistanceX", 26, 2, -1, 1, 24.326441),
    Sketcher.Constraint("DistanceX", 30, 2, -1, 1, 19.51591),
    Sketcher.Constraint("DistanceX", 33, 1, -1, 1, 7.76456),
    Sketcher.Constraint("DistanceX", 39, 1, -1, 1, 3.50073),
    Sketcher.Constraint("DistanceX", -1, 1, 2, 3, 0.983844),
    Sketcher.Constraint("DistanceX", 8, 3, -1, 1, 25.549522),
    Sketcher.Constraint("DistanceX", 10, 3, -1, 1, 15.764083),
    Sketcher.Constraint("DistanceY", 10, 3, -1, 1, 23.371215),
    Sketcher.Constraint("DistanceX", 16, 3, -1, 1, 27.672835),
    Sketcher.Constraint("DistanceX", 18, 3, -1, 1, 26.490667),
    Sketcher.Constraint("DistanceY", 18, 3, -1, 1, 9.641814),
    Sketcher.Constraint("DistanceX", 21, 3, -1, 1, 28.173606),
    Sketcher.Constraint("DistanceX", 29, 3, -1, 1, 23.371215),
    Sketcher.Constraint("DistanceY", -1, 1, 29, 3, 15.764083),
    Sketcher.Constraint("DistanceX", 31, 3, -1, 1, 11.913938),
    Sketcher.Constraint("DistanceX", 37, 3, -1, 1, 9.641814),
    Sketcher.Constraint("DistanceY", -1, 1, 37, 3, 26.490667),
    Sketcher.Constraint("DistanceX", -1, 1, 39, 3, 5.379054),
])
pad2 = body.newObject("PartDesign::Pad", "Pad001")
pad2.Profile = sketch2
pad2.Length = 10
pad2.Reversed = True

sketch3 = body.newObject("Sketcher::SketchObject", "Sketch002")
sketch3.AttachmentSupport = (doc.getObject("XZ_Plane"), [""])
sketch3.MapMode = "FlatFace"
sketch3.AttachmentOffset = App.Placement(V(0, 0, -10), App.Rotation())
sketch3.addGeometry([
    Part.LineSegment(V(69, 73, 0), V(-7, 8, 0)),
    Part.ArcOfCircle(Part.Circle(V(0, 0, 0), V(0, 0, 1), 10), math.radians(131), math.radians(197)),
    Part.LineSegment(V(-10, -3, 0), V(-2, -27, 0)),
    Part.LineSegment(V(-2, -27, 0), V(20, -98, 0)),
    Part.ArcOfCircle(Part.Circle(V(0, 0, 0), V(0, 0, 1), 100), math.radians(47), math.radians(281)),
], False)
sketch3.addConstraint([
    Sketcher.Constraint("Tangent", 0, 2, 1, 1),
    Sketcher.Constraint("Tangent", 1, 2, 2, 1),
    Sketcher.Constraint("Coincident", 2, 2, 3, 1),
    Sketcher.Constraint("Coincident", 3, 2, 4, 2),
    Sketcher.Constraint("Coincident", 4, 1, 0, 1),
    Sketcher.Constraint("Coincident", 1, 3, -1, 1),
    Sketcher.Constraint("Coincident", 4, 3, -1, 1),
    Sketcher.Constraint("Parallel", 2, 3),
    Sketcher.Constraint("Radius", 1, 10.0),
    Sketcher.Constraint("Radius", 4, 100.0),
    Sketcher.Constraint("DistanceX", 1, 2, 2, 2, 7.432401),
    Sketcher.Constraint("DistanceY", 2, 2, 4, 1, 99.573598),
    Sketcher.Constraint("Distance", 3, 74.418871),
])
pocket1 = body.newObject("PartDesign::Pocket", "Pocket")
pocket1.Profile = sketch3
pocket1.Type = "ThroughAll"
pocket1.Reversed = True

sketch4 = body.newObject("Sketcher::SketchObject", "Sketch003")
sketch4.AttachmentSupport = (doc.getObject("XZ_Plane"), [""])
sketch4.MapMode = "FlatFace"
sketch4.AttachmentOffset = App.Placement(V(0, 0, -10), App.Rotation())
sketch4.addGeometry(Part.Circle(V(0, 0, 0), V(0, 0, 1), 6), False)
sketch4.addConstraint([
    Sketcher.Constraint("Coincident", 0, 3, -1, 1),
    Sketcher.Constraint("Diameter", 0, 12.0),
])
pocket2 = body.newObject("PartDesign::Pocket", "Pocket001")
pocket2.Profile = sketch4
pocket2.Length = 10
pocket2.Reversed = True

sketch5 = body.newObject("Sketcher::SketchObject", "Sketch004")
sketch5.AttachmentSupport = (doc.getObject("XZ_Plane"), [""])
sketch5.MapMode = "FlatFace"
sketch5.addGeometry([
    Part.LineSegment(V(-18.3, -36.8, 0), V(-10, 0, 0)),
    Part.ArcOfCircle(Part.Circle(V(0, 0, 0), V(0, 0, 1), 10), math.radians(180), math.radians(197.24)),
    Part.LineSegment(V(-9.6, -3, 0), V(-2.1, -26.9, 0)),
    Part.ArcOfCircle(Part.Circle(V(0, 0, 0), V(0, 0, 1), 27), math.radians(-94.5), math.radians(-91.29)),
    Part.ArcOfCircle(Part.Circle(V(9.6, -26.5, 0), V(0, 0, 1), 10.3), math.radians(-177), math.radians(-141)),
    Part.ArcOfCircle(Part.Circle(V(0, 0, 0), V(0, 0, 1), 33), math.radians(-87.09), math.radians(-83.91)),
    Part.ArcOfCircle(Part.Circle(V(-5.4, -27.7, 0), V(0, 0, 1), 10.3), math.radians(-30), math.radians(6)),
    Part.LineSegment(V(4.8, -26.6, 0), V(7.2, -33.6, 0)),
    Part.ArcOfCircle(Part.Circle(V(-10, 0, 0), V(0, 0, 1), 37.7), math.radians(-103), math.radians(-63)),
], False)
sketch5.addConstraint([
    Sketcher.Constraint("Coincident", 0, 2, 1, 1),
    Sketcher.Constraint("Tangent", 1, 2, 2, 1),
    Sketcher.Constraint("Coincident", 2, 2, 3, 1),
    Sketcher.Constraint("Coincident", 3, 2, 4, 1),
    Sketcher.Constraint("Coincident", 4, 2, 5, 1),
    Sketcher.Constraint("Coincident", 5, 2, 6, 1),
    Sketcher.Constraint("Coincident", 6, 2, 7, 1),
    Sketcher.Constraint("Coincident", 7, 2, 8, 2),
    Sketcher.Constraint("Coincident", 8, 1, 0, 1),
    Sketcher.Constraint("Coincident", 1, 3, -1, 1),
    Sketcher.Constraint("Coincident", 3, 3, -1, 1),
    Sketcher.Constraint("Coincident", 5, 3, -1, 1),
    Sketcher.Constraint("Coincident", 0, 2, 8, 3),
    Sketcher.Constraint("Equal", 4, 6),
    Sketcher.Constraint("PointOnObject", 8, 3, -1),
    Sketcher.Constraint("Radius", 1, 10.0),
    Sketcher.Constraint("Radius", 3, 27.0),
    Sketcher.Constraint("Radius", 5, 33.0),
    Sketcher.Constraint("Radius", 4, 10.260604),
    Sketcher.Constraint("Radius", 8, 37.743337),
    Sketcher.Constraint("DistanceX", 8, 1, 5, 2, 21.838002),
    Sketcher.Constraint("DistanceY", 2, 2, 4, 3, 0.426101),
    Sketcher.Constraint("DistanceX", 1, 2, 2, 2, 7.432401),
    Sketcher.Constraint("DistanceY", 4, 2, 6, 3, 5.284599),
    Sketcher.Constraint("DistanceX", 3, 2, 7, 2, 7.7745),
    Sketcher.Constraint("DistanceX", -1, 1, 5, 2, 3.50073),
    Sketcher.Constraint("DistanceX", 6, 3, 4, 3, 15.020868),
    Sketcher.Constraint("DistanceX", 6, 2, 4, 3, 4.820139),
])
pad3 = body.newObject("PartDesign::Pad", "Pad002")
pad3.Profile = sketch5
pad3.Length = 10
pad3.Reversed = True

sketch6 = body.newObject("Sketcher::SketchObject", "Sketch005")
sketch6.AttachmentSupport = (doc.getObject("XZ_Plane"), [""])
sketch6.MapMode = "FlatFace"
sketch6.AttachmentOffset = App.Placement(V(0, 0, -10), App.Rotation())
sketch6.addGeometry(Part.Circle(V(-7, -29, 0), V(0, 0, 1), 6), False)
sketch6.addConstraint([
    Sketcher.Constraint("Diameter", 0, 12.2),
    Sketcher.Constraint("DistanceX", 0, 3, -1, 1, 6.626816),
    Sketcher.Constraint("DistanceY", 0, 3, -1, 1, 29.258936),
])
pocket3 = body.newObject("PartDesign::Pocket", "Pocket002")
pocket3.Profile = sketch6
pocket3.Length = 10
pocket3.Reversed = True

sketch7 = body.newObject("Sketcher::SketchObject", "Sketch006")
sketch7.AttachmentSupport = (doc.getObject("XZ_Plane"), [""])
sketch7.MapMode = "FlatFace"
sketch7.addGeometry([
    Part.LineSegment(V(0, -36, 0), V(4, -33, 0)),
    Part.ArcOfCircle(Part.Circle(V(-5, -28, 0), V(0, 0, 1), 10), math.radians(-30), math.radians(6)),
    Part.LineSegment(V(5, -27, 0), V(7, -34, 0)),
    Part.ArcOfCircle(Part.Circle(V(-10, 0, 0), V(0, 0, 1), 38), math.radians(-74.64), math.radians(-62.94)),
], False)
sketch7.addConstraint([
    Sketcher.Constraint("Coincident", 0, 2, 1, 1),
    Sketcher.Constraint("Coincident", 1, 2, 2, 1),
    Sketcher.Constraint("Coincident", 2, 2, 3, 2),
    Sketcher.Constraint("Coincident", 3, 1, 0, 1),
    Sketcher.Constraint("PointOnObject", 3, 3, -1),
    Sketcher.Constraint("PointOnObject", 3, 1, -2),
    Sketcher.Constraint("DistanceX", 3, 3, -1, 1, 10.0),
    Sketcher.Constraint("Radius", 1, 10.260604),
    Sketcher.Constraint("Radius", 3, 37.743337),
    Sketcher.Constraint("Distance", 0, 5.007652),
    Sketcher.Constraint("DistanceX", -1, 1, 0, 2, 3.50073),
    Sketcher.Constraint("DistanceY", 0, 2, 1, 2, 6.247808),
    Sketcher.Constraint("DistanceX", 1, 3, 1, 2, 10.200729),
    Sketcher.Constraint("DistanceY", 2, 2, 0, 2, 0.798982),
])
pocket4 = body.newObject("PartDesign::Pocket", "Pocket003")
pocket4.Profile = sketch7
pocket4.Length = 10
doc.recompute()

fillet = body.newObject("PartDesign::Fillet", "Fillet")
fillet.Base = (pocket4, edges_at(pocket4, [(-18.337, 5, -36.811)]))
fillet.Radius = 10

sketch8 = body.newObject("Sketcher::SketchObject", "Sketch007")
sketch8.AttachmentSupport = (doc.getObject("XZ_Plane"), [""])
sketch8.MapMode = "FlatFace"
sketch8.AttachmentOffset = App.Placement(V(0, 0, -4.5), App.Rotation())
sketch8.addGeometry([
    Part.LineSegment(V(5.7, -8.2, 0), V(15.4, -22.2, 0)),
    Part.ArcOfCircle(Part.Circle(V(0, 0, 0), V(0, 0, 1), 27), math.radians(-61.71), math.radians(-55.29)),
    Part.ArcOfCircle(Part.Circle(V(3.4, -28, 0), V(0, 0, 1), 10.3), math.radians(-12), math.radians(24)),
    Part.ArcOfCircle(Part.Circle(V(0, 0, 0), V(0, 0, 1), 33), math.radians(-69.09), math.radians(-65.91)),
    Part.ArcOfCircle(Part.Circle(V(17.4, -22.2, 0), V(0, 0, 1), 10.3), math.radians(-159), math.radians(-123)),
    Part.ArcOfCircle(Part.Circle(V(0, 0, 0), V(0, 0, 1), 27), math.radians(-79.71), math.radians(-73.29)),
    Part.ArcOfCircle(Part.Circle(V(-5.4, -27.7, 0), V(0, 0, 1), 10.3), math.radians(-30), math.radians(6)),
    Part.LineSegment(V(3.5, -32.8, 0), V(0, -36.4, 0)),
    Part.ArcOfCircle(Part.Circle(V(-10, 0, 0), V(0, 0, 1), 37.7), math.radians(-81.63), math.radians(-74.64)),
    Part.ArcOfCircle(Part.Circle(V(-6, -27.4, 0), V(0, 0, 1), 10), math.radians(167), math.radians(278)),
    Part.LineSegment(V(-15.7, -25.2, 0), V(-10, 0, 0)),
    Part.ArcOfCircle(Part.Circle(V(0, 0, 0), V(0, 0, 1), 10), math.radians(180), math.radians(305)),
    Part.Circle(V(-6.6, -29.3, 0), V(0, 0, 1), 6.1),
], False)
sketch8.addConstraint([
    Sketcher.Constraint("Coincident", 0, 2, 1, 2),
    Sketcher.Constraint("Coincident", 1, 1, 2, 2),
    Sketcher.Constraint("Coincident", 2, 1, 3, 2),
    Sketcher.Constraint("Coincident", 3, 1, 4, 2),
    Sketcher.Constraint("Coincident", 4, 1, 5, 2),
    Sketcher.Constraint("Coincident", 5, 1, 6, 2),
    Sketcher.Constraint("Coincident", 6, 1, 7, 1),
    Sketcher.Constraint("Coincident", 7, 2, 8, 2),
    Sketcher.Constraint("Tangent", 8, 1, 9, 2),
    Sketcher.Constraint("Tangent", 9, 1, 10, 1),
    Sketcher.Constraint("Coincident", 10, 2, 11, 1),
    Sketcher.Constraint("Coincident", 11, 2, 0, 1),
    Sketcher.Constraint("Coincident", 1, 3, -1, 1),
    Sketcher.Constraint("Coincident", 3, 3, -1, 1),
    Sketcher.Constraint("Coincident", 5, 3, -1, 1),
    Sketcher.Constraint("Coincident", 11, 3, -1, 1),
    Sketcher.Constraint("Coincident", 10, 2, 8, 3),
    Sketcher.Constraint("Equal", 2, 4),
    Sketcher.Constraint("Equal", 1, 5),
    Sketcher.Constraint("Equal", 4, 6),
    Sketcher.Constraint("Equal", 9, 11),
    Sketcher.Constraint("PointOnObject", 8, 3, -1),
    Sketcher.Constraint("PointOnObject", 7, 2, -2),
    Sketcher.Constraint("Radius", 1, 27.0),
    Sketcher.Constraint("Radius", 3, 33.0),
    Sketcher.Constraint("Radius", 9, 10.0),
    Sketcher.Constraint("Diameter", 12, 12.2),
    Sketcher.Constraint("DistanceY", 2, 1, 5, 1, 3.560002),
    Sketcher.Constraint("Radius", 2, 10.260604),
    Sketcher.Constraint("Radius", 8, 37.743338),
    Sketcher.Constraint("DistanceX", 3, 1, 4, 3, 5.578),
    Sketcher.Constraint("DistanceY", 3, 1, -1, 1, 30.8266),
    Sketcher.Constraint("DistanceY", 12, 3, 6, 3, 1.586101),
    Sketcher.Constraint("DistanceY", 12, 3, 4, 3, 7.044299),
    Sketcher.Constraint("DistanceX", 6, 3, 0, 2, 20.754602),
    Sketcher.Constraint("DistanceX", 5, 1, 3, 1, 6.956301),
    Sketcher.Constraint("DistanceX", 11, 2, 0, 2, 9.6809),
    Sketcher.Constraint("Distance", 7, 5.007652),
    Sketcher.Constraint("DistanceX", -1, 1, 2, 3, 3.435592),
    Sketcher.Constraint("DistanceY", 9, 3, -1, 1, 27.448109),
    Sketcher.Constraint("DistanceX", 12, 3, 9, 3, 0.66341),
])
pocket5 = body.newObject("PartDesign::Pocket", "Pocket004")
pocket5.Profile = sketch8
pocket5.Length = 5.5

sketch9 = body.newObject("Sketcher::SketchObject", "Sketch008")
sketch9.AttachmentSupport = (doc.getObject("XZ_Plane"), [""])
sketch9.MapMode = "FlatFace"
sketch9.AttachmentOffset = App.Placement(V(0, 0, -1), App.Rotation())
sketch9.addGeometry([
    Part.Circle(V(-6.6, -29.3, 0), V(0, 0, 1), 6.1),
    Part.Circle(V(-6.6, -29.3, 0), V(0, 0, 1), 3),
], False)
sketch9.addConstraint([
    Sketcher.Constraint("Coincident", 1, 3, 0, 3),
    Sketcher.Constraint("Diameter", 1, 6.0),
    Sketcher.Constraint("Diameter", 0, 12.2),
    Sketcher.Constraint("DistanceX", 0, 3, -1, 1, 6.626816),
    Sketcher.Constraint("DistanceY", 0, 3, -1, 1, 29.258936),
])
pad4 = body.newObject("PartDesign::Pad", "Pad003")
pad4.Profile = sketch9
pad4.Length = 1

doc.recompute()
